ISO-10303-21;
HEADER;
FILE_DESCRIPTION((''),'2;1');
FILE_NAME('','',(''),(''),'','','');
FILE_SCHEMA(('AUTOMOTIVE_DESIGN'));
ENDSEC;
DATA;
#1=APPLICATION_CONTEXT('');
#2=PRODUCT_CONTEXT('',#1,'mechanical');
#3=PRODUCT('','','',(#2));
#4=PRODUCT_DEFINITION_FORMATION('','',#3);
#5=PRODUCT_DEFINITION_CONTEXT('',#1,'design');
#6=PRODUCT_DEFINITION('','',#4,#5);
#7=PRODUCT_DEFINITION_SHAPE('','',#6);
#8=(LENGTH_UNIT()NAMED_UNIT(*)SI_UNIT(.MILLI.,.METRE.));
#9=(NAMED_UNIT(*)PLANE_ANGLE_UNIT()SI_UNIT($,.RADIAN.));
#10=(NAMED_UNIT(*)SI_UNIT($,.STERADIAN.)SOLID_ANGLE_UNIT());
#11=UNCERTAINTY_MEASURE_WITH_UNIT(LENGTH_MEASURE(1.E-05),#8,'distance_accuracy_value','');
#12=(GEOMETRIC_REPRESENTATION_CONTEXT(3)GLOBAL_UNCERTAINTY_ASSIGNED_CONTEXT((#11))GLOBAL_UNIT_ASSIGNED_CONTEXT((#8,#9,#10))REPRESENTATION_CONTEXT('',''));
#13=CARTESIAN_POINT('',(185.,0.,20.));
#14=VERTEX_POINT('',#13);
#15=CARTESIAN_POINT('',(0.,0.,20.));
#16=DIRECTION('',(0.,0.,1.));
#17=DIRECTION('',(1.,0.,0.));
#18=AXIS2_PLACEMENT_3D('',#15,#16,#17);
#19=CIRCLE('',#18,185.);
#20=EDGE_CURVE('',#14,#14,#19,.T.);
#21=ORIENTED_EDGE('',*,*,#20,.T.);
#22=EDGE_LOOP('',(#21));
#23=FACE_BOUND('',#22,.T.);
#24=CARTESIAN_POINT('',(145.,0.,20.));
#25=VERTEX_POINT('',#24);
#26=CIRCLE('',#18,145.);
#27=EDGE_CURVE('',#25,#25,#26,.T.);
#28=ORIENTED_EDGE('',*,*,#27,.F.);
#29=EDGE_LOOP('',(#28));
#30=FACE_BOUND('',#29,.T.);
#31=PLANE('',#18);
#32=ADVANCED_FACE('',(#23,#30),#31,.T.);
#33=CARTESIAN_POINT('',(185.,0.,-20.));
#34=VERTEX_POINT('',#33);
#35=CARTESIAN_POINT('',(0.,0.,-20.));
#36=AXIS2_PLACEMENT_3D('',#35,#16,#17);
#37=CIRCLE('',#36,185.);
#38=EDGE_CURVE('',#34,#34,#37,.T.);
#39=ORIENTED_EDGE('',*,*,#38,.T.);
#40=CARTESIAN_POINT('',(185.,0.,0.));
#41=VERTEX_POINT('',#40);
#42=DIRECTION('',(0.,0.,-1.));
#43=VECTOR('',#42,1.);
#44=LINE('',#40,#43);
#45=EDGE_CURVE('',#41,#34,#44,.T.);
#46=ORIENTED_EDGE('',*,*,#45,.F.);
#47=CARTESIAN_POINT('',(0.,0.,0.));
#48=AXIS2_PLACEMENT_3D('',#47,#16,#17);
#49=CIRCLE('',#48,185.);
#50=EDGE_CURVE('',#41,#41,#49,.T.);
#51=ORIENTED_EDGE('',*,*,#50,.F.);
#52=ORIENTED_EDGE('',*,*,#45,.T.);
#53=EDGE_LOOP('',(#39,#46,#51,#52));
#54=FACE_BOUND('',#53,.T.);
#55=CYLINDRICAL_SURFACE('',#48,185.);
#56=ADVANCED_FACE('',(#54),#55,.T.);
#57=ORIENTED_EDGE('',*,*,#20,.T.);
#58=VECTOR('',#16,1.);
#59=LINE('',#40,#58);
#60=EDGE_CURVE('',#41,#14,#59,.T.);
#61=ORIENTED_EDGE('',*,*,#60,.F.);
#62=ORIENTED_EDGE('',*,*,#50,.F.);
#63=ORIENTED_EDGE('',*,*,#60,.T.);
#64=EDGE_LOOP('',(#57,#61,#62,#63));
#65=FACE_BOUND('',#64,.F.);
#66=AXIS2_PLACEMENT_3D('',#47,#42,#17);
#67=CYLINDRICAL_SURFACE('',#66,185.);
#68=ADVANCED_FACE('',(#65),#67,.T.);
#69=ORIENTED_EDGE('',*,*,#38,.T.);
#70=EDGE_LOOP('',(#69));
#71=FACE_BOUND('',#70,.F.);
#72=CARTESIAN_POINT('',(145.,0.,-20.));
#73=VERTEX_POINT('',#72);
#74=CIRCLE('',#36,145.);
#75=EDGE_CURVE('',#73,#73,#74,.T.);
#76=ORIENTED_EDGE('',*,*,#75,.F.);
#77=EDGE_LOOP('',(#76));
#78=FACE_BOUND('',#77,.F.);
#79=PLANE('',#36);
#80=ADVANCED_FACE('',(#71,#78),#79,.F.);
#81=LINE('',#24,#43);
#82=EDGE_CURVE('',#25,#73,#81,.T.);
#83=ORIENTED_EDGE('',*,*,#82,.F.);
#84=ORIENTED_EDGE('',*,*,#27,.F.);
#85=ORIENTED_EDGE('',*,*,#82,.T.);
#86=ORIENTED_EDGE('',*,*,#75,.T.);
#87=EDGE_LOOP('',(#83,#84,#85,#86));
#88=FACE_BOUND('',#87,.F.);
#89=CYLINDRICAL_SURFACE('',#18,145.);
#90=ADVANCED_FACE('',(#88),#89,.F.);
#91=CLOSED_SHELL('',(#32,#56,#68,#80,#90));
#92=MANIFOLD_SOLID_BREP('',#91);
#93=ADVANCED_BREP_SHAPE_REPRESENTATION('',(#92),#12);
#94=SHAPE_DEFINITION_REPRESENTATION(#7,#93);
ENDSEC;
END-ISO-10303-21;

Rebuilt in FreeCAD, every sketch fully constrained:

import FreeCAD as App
import Part
import Sketcher

V = App.Vector
Q = App.Units.Quantity

doc = App.newDocument("Part")
body = doc.addObject("PartDesign::Body", "Body")

sketch1 = body.newObject("Sketcher::SketchObject", "Sketch")
sketch1.AttachmentSupport = (doc.getObject("XY_Plane"), [""])
sketch1.MapMode = "FlatFace"
sketch1.addGeometry(Part.Circle(V(0, 0, 0), V(0, 0, 1), 185), False)
sketch1.addConstraint([
    Sketcher.Constraint("Coincident", 0, 3, -1, 1),
    Sketcher.Constraint("Diameter", 0, Q("370 mm")),
])
pad1 = body.newObject("PartDesign::Pad", "Pad")
pad1.Profile = sketch1
pad1.Length = 40
pad1.Midplane = True

sketch2 = body.newObject("Sketcher::SketchObject", "Sketch001")
sketch2.AttachmentSupport = (doc.getObject("XY_Plane"), [""])
sketch2.MapMode = "FlatFace"
sketch2.AttachmentOffset = App.Placement(V(0, 0, 20), App.Rotation())
sketch2.addGeometry(Part.Circle(V(0, 0, 0), V(0, 0, 1), 145), False)
sketch2.addConstraint([
    Sketcher.Constraint("Coincident", 0, 3, -1, 1),
    Sketcher.Constraint("Diameter", 0, Q("290 mm")),
])
pocket1 = body.newObject("PartDesign::Pocket", "Pocket")
pocket1.Profile = sketch2
pocket1.Type = "ThroughAll"

doc.recompute()
